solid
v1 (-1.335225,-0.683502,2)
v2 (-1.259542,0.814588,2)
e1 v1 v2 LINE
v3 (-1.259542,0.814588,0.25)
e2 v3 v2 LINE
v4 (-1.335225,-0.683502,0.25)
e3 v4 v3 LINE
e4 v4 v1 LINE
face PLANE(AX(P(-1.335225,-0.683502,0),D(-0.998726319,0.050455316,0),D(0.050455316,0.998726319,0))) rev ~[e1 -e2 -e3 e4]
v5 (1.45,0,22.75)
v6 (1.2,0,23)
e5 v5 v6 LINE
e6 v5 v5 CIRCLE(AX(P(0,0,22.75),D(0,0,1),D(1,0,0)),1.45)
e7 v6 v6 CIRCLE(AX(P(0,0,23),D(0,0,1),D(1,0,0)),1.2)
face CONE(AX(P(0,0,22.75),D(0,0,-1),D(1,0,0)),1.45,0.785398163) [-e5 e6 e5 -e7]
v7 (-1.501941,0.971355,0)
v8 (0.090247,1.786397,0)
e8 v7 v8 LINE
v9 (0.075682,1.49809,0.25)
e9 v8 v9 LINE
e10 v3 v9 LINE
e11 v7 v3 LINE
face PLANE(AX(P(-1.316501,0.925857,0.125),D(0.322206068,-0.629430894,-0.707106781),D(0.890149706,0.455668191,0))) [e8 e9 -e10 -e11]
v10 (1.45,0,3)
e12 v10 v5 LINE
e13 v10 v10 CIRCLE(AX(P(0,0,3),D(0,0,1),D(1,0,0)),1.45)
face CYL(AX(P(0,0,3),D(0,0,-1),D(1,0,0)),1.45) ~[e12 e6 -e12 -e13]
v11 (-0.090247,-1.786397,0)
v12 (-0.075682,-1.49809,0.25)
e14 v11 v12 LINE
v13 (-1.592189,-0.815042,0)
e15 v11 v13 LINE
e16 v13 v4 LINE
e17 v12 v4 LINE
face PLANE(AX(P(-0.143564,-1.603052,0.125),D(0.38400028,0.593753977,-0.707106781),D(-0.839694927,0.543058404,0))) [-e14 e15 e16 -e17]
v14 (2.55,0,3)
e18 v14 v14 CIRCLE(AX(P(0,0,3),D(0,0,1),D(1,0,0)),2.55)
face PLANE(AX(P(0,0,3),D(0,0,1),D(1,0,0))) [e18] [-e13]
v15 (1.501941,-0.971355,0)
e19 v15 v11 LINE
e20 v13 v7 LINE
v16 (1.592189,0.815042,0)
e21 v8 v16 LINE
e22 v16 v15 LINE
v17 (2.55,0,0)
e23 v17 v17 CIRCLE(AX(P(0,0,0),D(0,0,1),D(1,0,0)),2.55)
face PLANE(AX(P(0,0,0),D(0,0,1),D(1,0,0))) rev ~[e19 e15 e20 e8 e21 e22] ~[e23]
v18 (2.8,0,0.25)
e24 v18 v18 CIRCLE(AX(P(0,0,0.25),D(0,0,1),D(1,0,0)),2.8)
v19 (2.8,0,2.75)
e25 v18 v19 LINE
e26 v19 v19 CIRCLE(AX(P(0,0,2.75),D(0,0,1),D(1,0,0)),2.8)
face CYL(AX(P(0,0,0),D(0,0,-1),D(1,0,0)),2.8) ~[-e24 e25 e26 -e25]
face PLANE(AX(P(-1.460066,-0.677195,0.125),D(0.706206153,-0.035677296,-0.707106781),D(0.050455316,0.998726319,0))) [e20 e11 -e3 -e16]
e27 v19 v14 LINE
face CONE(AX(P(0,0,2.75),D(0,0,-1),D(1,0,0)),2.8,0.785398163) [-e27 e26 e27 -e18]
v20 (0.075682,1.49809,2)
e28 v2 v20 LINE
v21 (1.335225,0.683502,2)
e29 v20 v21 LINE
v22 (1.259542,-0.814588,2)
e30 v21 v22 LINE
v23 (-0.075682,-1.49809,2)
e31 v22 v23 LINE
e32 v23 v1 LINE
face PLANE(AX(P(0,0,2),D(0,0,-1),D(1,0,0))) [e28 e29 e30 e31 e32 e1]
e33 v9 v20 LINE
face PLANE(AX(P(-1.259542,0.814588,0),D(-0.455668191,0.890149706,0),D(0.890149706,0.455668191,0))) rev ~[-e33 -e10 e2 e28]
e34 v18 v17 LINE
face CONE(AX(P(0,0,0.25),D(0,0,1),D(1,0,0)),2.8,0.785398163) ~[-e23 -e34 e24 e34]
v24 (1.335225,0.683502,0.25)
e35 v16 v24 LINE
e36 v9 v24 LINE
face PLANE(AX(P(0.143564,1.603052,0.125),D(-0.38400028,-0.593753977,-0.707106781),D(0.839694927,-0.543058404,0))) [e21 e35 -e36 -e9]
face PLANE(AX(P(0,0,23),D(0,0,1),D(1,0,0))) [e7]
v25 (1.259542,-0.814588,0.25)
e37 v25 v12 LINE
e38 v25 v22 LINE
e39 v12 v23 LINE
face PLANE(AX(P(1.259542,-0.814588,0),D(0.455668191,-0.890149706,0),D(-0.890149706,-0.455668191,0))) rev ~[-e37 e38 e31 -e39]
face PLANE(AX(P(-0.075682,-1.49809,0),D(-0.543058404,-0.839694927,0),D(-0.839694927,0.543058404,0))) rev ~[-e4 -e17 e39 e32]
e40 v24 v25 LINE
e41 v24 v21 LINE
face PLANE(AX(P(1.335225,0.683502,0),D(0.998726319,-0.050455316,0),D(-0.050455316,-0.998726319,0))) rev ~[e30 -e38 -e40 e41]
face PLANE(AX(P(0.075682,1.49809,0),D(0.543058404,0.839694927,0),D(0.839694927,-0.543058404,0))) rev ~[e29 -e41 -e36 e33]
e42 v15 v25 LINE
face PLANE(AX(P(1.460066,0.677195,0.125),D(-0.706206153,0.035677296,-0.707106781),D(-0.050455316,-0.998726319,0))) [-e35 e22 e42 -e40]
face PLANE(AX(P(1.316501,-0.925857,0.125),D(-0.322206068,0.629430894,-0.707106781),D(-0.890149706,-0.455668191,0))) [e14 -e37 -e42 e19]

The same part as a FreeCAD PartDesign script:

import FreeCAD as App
import Part
import Sketcher
from FreeCAD import Vector


def edges_at(feature, points):
    """Names of the edges that pass closest to the given points."""
    edges = feature.Shape.Edges
    near = lambda p: min(range(len(edges)), key=lambda i: edges[i].distToShape(Part.Vertex(*p))[0])
    return sorted({f"Edge{near(p) + 1}" for p in points})


def add_polygon(sketch, points):
    """Adds a closed chain of lines whose ends are joined by coincident constraints."""
    first, n = sketch.GeometryCount, len(points)
    for a, b in zip(points, points[1:] + points[:1]):
        sketch.addGeometry(Part.LineSegment(App.Vector(*a, 0), App.Vector(*b, 0)), False)
    for i in range(n):
        sketch.addConstraint(Sketcher.Constraint("Coincident", first + i, 2, first + (i + 1) % n, 1))

doc = App.newDocument("Part")
body = doc.addObject("PartDesign::Body", "Body")

# Sketch on XY plane
sketch1 = body.newObject("Sketcher::SketchObject", "Sketch")
sketch1.AttachmentSupport = (doc.getObject("XY_Plane"), [""])
sketch1.MapMode = "FlatFace"
sketch1.addGeometry(Part.Circle(Vector(0, 0, 0), Vector(0, 0, 1), 2.8), False)
sketch1.addConstraint([
    Sketcher.Constraint("Coincident", 0, 3, -1, 1),
    Sketcher.Constraint("Diameter", 0, 5.6),
])
pad1 = body.newObject("PartDesign::Pad", "Pad")
pad1.Profile = sketch1
pad1.Length = 3

# Sketch on XY plane
sketch2 = body.newObject("Sketcher::SketchObject", "Sketch001")
sketch2.AttachmentSupport = (doc.getObject("XY_Plane"), [""])
sketch2.MapMode = "FlatFace"
sketch2.AttachmentOffset = App.Placement(Vector(0, 0, 3), App.Rotation())
sketch2.addGeometry(Part.Circle(Vector(0, 0, 0), Vector(0, 0, 1), 1.4), False)
sketch2.addConstraint([
    Sketcher.Constraint("Coincident", 0, 3, -1, 1),
    Sketcher.Constraint("Diameter", 0, 2.9),
])
pad2 = body.newObject("PartDesign::Pad", "Pad001")
pad2.Profile = sketch2
pad2.Length = 20

# Sketch on XY plane
sketch3 = body.newObject("Sketcher::SketchObject", "Sketch002")
sketch3.AttachmentSupport = (doc.getObject("XY_Plane"), [""])
sketch3.MapMode = "FlatFace"
add_polygon(sketch3, [(1.3, -0.8), (-0.1, -1.5), (-1.3, -0.7), (-1.3, 0.8), (0.1, 1.5), (1.3, 0.7)])  # lines 0-5
sketch3.addConstraint([
    Sketcher.Constraint("Symmetric", 0, 2, 3, 2, -1, 1),
    Sketcher.Constraint("Symmetric", 1, 2, 4, 2, -1, 1),
    Sketcher.Constraint("Symmetric", 2, 2, 5, 2, -1, 1),
    Sketcher.Constraint("Equal", 0, 1),
    Sketcher.Constraint("Equal", 1, 2),
    Sketcher.Constraint("Distance", 0, 1.499999),
    Sketcher.Constraint("DistanceY", 2, 2, 3, 2, 0.683502),
    Sketcher.Constraint("DistanceY", 0, 2, -1, 1, 1.49809),
    Sketcher.Constraint("DistanceX", 2, 2, -1, 1, 1.259542),
])
pocket1 = body.newObject("PartDesign::Pocket", "Pocket")
pocket1.Profile = sketch3
pocket1.Length = 2
pocket1.Reversed = True
doc.recompute()

chamfer = body.newObject("PartDesign::Chamfer", "Chamfer")
chamfer.Base = (pocket1, edges_at(pocket1, [
    (-2.8, 0, 3),
    (-2.8, 0, 0),
    (1.297, -0.066, 0),
    (0.705, 1.091, 0),
    (-0.592, 1.156, 0),
    (-1.297, 0.066, 0),
    (-0.705, -1.091, 0),
    (0.592, -1.156, 0),
    (-1.45, 0, 23),
]))
chamfer.Size = 0.25

doc.recompute()
